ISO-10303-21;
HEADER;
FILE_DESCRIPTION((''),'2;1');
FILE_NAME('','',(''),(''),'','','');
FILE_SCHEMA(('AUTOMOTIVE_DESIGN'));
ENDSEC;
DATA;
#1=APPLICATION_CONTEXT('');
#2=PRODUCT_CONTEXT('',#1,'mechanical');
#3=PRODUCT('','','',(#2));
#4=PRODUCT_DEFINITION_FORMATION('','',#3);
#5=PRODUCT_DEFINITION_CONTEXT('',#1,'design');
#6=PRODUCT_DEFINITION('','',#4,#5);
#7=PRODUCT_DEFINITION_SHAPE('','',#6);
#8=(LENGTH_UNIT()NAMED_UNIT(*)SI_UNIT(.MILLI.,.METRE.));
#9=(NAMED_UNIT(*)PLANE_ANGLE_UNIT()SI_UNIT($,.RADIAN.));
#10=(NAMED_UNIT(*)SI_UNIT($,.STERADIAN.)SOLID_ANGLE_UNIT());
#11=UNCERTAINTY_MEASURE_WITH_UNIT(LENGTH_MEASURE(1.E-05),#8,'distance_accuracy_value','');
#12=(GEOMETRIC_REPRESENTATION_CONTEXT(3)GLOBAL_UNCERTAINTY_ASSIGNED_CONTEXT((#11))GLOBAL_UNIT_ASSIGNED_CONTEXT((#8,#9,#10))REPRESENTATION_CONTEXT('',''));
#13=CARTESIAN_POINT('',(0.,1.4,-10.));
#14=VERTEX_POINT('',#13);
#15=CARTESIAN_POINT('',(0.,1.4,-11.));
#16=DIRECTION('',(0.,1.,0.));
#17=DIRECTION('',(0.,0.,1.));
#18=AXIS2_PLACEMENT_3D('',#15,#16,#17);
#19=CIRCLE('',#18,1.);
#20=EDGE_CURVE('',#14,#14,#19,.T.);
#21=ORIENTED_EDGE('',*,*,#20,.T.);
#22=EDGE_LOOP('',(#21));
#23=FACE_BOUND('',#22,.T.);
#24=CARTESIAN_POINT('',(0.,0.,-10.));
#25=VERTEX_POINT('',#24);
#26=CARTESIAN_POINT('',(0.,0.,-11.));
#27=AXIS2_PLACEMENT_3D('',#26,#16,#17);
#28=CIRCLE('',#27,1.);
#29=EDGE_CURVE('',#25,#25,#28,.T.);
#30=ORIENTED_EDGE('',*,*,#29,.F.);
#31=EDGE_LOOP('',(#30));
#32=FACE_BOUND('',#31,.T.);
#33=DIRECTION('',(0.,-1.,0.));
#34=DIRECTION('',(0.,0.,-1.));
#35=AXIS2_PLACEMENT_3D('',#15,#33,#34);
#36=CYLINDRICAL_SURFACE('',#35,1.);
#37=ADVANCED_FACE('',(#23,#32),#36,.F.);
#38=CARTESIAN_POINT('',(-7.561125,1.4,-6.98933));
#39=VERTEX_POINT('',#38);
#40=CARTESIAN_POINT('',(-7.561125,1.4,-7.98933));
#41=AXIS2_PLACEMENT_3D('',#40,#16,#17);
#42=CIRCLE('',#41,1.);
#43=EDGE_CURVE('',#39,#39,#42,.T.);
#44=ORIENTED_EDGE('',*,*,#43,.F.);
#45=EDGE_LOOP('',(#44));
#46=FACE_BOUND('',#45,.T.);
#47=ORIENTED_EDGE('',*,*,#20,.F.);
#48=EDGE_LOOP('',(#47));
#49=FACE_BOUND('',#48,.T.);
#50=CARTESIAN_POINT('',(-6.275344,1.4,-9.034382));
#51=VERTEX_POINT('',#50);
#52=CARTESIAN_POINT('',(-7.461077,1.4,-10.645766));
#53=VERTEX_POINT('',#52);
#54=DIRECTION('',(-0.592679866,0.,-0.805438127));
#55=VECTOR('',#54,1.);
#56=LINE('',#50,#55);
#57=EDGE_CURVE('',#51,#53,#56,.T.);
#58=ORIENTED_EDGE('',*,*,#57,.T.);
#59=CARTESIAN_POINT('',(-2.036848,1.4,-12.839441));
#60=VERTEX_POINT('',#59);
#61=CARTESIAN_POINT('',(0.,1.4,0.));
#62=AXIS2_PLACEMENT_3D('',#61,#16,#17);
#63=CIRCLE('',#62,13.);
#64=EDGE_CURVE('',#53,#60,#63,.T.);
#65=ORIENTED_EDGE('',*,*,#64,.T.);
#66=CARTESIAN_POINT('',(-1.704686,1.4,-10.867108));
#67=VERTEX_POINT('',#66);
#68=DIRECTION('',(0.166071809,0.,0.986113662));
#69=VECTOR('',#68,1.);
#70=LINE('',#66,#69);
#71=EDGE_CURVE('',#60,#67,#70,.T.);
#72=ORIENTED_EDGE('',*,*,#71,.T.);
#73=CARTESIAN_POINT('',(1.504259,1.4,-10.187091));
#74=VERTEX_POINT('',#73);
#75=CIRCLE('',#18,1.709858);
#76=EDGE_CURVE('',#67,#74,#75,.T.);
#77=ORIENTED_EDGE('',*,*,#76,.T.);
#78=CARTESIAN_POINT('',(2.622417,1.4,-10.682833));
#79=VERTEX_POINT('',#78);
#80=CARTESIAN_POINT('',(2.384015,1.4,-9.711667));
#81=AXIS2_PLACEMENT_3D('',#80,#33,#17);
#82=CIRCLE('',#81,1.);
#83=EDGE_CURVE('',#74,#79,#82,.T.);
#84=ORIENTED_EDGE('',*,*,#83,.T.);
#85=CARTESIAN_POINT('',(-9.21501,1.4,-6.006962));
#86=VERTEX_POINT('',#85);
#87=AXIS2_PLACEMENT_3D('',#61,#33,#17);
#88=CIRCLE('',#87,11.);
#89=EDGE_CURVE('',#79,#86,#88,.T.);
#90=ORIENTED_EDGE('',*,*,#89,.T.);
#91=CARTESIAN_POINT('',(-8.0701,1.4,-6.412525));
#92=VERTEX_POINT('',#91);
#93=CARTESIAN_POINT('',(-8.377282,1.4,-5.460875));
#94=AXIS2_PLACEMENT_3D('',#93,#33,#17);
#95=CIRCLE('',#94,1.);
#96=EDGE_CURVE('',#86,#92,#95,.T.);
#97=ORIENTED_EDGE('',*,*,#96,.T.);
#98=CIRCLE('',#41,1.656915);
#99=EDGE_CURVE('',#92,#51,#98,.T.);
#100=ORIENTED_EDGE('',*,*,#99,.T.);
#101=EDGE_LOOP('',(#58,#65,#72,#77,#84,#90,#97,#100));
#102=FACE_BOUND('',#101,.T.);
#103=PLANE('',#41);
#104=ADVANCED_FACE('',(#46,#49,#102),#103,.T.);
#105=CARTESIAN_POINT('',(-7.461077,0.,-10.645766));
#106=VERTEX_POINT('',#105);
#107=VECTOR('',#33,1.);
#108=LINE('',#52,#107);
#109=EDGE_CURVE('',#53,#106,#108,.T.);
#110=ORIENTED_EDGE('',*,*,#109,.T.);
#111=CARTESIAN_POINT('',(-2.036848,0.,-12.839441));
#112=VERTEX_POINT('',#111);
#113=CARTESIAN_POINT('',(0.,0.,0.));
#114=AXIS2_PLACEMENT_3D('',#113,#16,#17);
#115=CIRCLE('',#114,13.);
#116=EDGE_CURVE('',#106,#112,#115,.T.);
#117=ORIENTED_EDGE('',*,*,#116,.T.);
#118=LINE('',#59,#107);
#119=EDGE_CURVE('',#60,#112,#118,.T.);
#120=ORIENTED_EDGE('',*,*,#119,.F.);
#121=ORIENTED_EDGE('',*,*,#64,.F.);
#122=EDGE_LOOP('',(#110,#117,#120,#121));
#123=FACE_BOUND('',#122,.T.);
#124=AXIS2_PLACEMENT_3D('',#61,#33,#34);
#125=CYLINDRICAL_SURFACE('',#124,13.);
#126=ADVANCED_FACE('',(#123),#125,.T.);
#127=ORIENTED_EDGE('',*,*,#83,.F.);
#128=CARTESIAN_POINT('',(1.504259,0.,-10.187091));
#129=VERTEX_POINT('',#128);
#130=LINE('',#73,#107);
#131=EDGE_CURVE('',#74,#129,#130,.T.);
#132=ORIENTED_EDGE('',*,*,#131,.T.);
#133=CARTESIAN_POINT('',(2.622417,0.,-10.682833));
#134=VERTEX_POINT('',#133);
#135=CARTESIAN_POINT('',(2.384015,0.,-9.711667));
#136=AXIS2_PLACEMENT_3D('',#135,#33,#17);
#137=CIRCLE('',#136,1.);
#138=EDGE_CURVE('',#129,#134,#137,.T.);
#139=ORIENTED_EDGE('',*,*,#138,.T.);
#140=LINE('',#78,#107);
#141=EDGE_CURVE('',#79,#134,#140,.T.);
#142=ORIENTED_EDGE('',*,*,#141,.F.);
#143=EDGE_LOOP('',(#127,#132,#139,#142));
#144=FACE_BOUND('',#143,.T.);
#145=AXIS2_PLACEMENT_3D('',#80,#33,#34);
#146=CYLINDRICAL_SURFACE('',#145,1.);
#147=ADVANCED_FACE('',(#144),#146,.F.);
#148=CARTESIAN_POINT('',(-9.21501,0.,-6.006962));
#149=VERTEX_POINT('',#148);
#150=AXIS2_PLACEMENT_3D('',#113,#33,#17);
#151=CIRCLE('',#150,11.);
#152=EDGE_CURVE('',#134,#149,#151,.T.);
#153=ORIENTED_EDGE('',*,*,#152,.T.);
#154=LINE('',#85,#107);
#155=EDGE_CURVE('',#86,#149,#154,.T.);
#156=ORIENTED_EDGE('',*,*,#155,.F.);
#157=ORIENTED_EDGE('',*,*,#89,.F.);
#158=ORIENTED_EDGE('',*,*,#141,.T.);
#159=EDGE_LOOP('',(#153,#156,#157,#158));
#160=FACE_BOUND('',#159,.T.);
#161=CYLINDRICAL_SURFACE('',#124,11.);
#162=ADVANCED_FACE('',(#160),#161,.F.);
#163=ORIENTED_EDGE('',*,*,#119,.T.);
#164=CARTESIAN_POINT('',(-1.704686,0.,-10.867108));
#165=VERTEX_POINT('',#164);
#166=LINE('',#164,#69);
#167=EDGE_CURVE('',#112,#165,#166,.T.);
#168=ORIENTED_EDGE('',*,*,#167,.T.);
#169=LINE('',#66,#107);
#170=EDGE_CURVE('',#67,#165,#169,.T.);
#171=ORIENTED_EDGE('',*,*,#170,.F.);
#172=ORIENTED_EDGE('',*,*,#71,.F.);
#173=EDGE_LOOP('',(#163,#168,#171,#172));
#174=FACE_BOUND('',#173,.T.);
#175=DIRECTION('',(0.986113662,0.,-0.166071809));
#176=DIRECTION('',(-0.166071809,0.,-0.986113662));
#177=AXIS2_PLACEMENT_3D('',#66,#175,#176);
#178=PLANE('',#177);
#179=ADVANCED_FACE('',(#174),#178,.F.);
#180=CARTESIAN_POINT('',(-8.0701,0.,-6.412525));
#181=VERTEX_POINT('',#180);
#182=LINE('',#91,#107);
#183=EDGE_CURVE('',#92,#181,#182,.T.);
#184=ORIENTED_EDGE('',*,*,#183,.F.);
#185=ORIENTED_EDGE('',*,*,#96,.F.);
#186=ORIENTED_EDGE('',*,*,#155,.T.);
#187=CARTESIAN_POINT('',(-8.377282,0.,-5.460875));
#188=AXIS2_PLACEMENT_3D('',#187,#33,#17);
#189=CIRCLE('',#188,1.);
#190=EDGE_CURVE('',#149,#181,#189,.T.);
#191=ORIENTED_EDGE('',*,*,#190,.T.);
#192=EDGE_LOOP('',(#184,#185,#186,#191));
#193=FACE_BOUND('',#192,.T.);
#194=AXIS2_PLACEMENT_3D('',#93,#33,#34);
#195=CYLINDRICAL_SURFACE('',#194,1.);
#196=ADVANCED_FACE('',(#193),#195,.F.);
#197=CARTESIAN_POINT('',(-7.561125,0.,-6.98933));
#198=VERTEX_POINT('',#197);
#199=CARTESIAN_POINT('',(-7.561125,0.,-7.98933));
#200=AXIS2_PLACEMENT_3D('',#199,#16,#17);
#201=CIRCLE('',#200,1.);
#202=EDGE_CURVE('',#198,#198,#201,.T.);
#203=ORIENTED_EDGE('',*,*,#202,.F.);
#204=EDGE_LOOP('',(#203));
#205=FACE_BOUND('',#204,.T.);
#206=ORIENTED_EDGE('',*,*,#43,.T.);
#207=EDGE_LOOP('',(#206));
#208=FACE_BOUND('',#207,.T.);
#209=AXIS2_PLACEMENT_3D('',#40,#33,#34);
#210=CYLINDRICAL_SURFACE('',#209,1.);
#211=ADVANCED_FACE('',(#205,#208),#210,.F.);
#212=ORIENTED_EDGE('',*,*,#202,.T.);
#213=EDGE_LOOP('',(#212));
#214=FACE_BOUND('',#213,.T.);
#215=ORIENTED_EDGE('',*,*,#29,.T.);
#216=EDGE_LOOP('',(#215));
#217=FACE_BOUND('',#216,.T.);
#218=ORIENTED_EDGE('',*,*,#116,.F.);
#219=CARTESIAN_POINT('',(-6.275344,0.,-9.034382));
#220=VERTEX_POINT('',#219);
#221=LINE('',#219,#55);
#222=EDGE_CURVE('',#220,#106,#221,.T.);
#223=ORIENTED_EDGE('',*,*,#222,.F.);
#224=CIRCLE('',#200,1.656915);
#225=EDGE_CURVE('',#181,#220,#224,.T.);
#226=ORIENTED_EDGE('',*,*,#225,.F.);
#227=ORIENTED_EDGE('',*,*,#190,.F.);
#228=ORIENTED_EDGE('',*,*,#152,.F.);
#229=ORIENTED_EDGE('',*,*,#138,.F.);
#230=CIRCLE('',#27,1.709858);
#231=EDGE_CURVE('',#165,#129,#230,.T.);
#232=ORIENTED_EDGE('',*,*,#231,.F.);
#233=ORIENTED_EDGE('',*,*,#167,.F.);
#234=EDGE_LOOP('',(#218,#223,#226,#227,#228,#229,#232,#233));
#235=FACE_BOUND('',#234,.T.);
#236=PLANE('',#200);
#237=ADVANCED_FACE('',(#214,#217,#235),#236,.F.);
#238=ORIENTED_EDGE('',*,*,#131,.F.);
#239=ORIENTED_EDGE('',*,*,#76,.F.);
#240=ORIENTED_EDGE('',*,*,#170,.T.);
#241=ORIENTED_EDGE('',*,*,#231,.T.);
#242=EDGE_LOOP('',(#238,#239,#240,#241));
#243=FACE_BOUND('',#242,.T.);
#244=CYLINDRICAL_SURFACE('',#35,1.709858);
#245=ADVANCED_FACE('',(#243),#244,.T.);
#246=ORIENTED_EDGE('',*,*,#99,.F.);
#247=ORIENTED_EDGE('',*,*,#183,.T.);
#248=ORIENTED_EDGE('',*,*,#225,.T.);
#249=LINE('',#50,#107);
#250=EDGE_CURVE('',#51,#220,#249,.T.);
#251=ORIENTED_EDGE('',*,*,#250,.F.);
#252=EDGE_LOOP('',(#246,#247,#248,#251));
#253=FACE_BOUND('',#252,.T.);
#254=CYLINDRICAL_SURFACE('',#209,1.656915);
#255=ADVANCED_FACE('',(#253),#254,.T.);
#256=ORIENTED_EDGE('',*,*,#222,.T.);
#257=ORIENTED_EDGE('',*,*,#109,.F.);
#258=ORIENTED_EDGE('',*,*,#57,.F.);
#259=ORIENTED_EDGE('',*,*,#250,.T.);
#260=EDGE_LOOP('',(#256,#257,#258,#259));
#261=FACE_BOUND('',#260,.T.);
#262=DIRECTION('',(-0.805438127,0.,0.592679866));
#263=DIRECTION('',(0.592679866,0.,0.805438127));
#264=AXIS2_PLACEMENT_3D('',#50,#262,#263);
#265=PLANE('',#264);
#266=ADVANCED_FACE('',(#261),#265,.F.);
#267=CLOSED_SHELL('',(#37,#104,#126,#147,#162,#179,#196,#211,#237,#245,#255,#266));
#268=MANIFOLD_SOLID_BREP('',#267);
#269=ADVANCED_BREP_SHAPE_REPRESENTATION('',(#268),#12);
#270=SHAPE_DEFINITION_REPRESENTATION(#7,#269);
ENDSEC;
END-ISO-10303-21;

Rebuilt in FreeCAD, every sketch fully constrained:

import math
import FreeCAD as App
import Part
import Sketcher

V = App.Vector
Q = App.Units.Quantity

doc = App.newDocument("Part")
params = doc.addObject("Spreadsheet::Sheet", "Params")
for row, (alias, value) in enumerate([
    ("sketch1_diameter", "2 mm"),
    ("sketch1_radius", "11 mm"),
    ("sketch1_radius2", "13 mm"),
    ("pad1_length", "1.4 mm"),
], start=1):
    params.set(f"A{row}", alias)
    params.set(f"B{row}", "=" + value)
    params.setAlias(f"B{row}", alias)

body = doc.addObject("PartDesign::Body", "Body")

sketch1 = doc.addObject("Sketcher::SketchObject", "Sketch")
body.addObject(sketch1)
sketch1.AttachmentSupport = (doc.XZ_Plane, [""])
sketch1.MapMode = "FlatFace"
sketch1.addGeometry([
    Part.LineSegment(V(-2.036848, -12.839441, 0), V(-1.704686, -10.867108, 0)),
    Part.ArcOfCircle(Part.Circle(V(0, -11, 0), V(0, 0, 1), 1.709858), math.radians(28.386999), math.radians(175.542429)),
    Part.ArcOfCircle(Part.Circle(V(2.384015, -9.711667, 0), V(0, 0, 1), 1), math.radians(-151.613001), math.radians(-76.207783)),
    Part.ArcOfCircle(Part.Circle(V(0, 0, 0), V(0, 0, 1), 11), math.radians(-76.207783), math.radians(213.099008)),
    Part.ArcOfCircle(Part.Circle(V(-8.377282, -5.460875, 0), V(0, 0, 1), 1), math.radians(-146.900992), math.radians(-72.110504)),
    Part.ArcOfCircle(Part.Circle(V(-7.561125, -7.98933, 0), V(0, 0, 1), 1.656915), math.radians(-39.10339), math.radians(107.889496)),
    Part.LineSegment(V(-6.275344, -9.034382, 0), V(-7.461077, -10.645766, 0)),
    Part.ArcOfCircle(Part.Circle(V(0, 0, 0), V(0, 0, 1), 13), math.radians(-99.014278), math.radians(234.975338)),
    Part.Circle(V(-7.561125, -7.98933, 0), V(0, 0, 1), 1),
    Part.Circle(V(0, -11, 0), V(0, 0, 1), 1),
], False)
sketch1.addConstraint([
    Sketcher.Constraint("Coincident", 0, 2, 1, 2),
    Sketcher.Constraint("Tangent", 1, 1, 2, 1),
    Sketcher.Constraint("Tangent", 2, 2, 3, 1),
    Sketcher.Constraint("Tangent", 3, 2, 4, 1),
    Sketcher.Constraint("Tangent", 4, 2, 5, 2),
    Sketcher.Constraint("Coincident", 5, 1, 6, 1),
    Sketcher.Constraint("Coincident", 6, 2, 7, 2),
    Sketcher.Constraint("Coincident", 7, 1, 0, 1),
    Sketcher.Constraint("Coincident", 3, 3, -1, 1),
    Sketcher.Constraint("Coincident", 7, 3, -1, 1),
    Sketcher.Constraint("Coincident", 8, 3, 5, 3),
    Sketcher.Constraint("Coincident", 9, 3, 1, 3),
    Sketcher.Constraint("Equal", 2, 4),
    Sketcher.Constraint("Equal", 4, 8),
    Sketcher.Constraint("Equal", 8, 9),
    Sketcher.Constraint("PointOnObject", 1, 3, -2),
    Sketcher.Constraint("Diameter", 8, Q("2 mm")),
    Sketcher.Constraint("Radius", 3, Q("11 mm")),
    Sketcher.Constraint("Radius", 7, Q("13 mm")),
    Sketcher.Constraint("DistanceY", 1, 3, -1, 1, Q("11 mm")),
    Sketcher.Constraint("Radius", 1, Q("1.709858 mm")),
    Sketcher.Constraint("Radius", 5, Q("1.656915 mm")),
    Sketcher.Constraint("DistanceX", 4, 2, -1, 1, Q("8.0701 mm")),
    Sketcher.Constraint("DistanceX", 0, 2, 2, 3, Q("4.088702 mm")),
    Sketcher.Constraint("Distance", 6, Q("2.00063 mm")),
    Sketcher.Constraint("DistanceX", 4, 3, -1, 1, Q("8.377282 mm")),
    Sketcher.Constraint("DistanceY", 7, 1, -1, 1, Q("12.839441 mm")),
    Sketcher.Constraint("DistanceX", 8, 3, 5, 1, Q("1.285781 mm")),
])
sketch1.setExpression("Constraints[16]", "Params.sketch1_diameter")
sketch1.setExpression("Constraints[17]", "Params.sketch1_radius")
sketch1.setExpression("Constraints[18]", "Params.sketch1_radius2")
pad1 = doc.addObject("PartDesign::Pad", "Pad")
body.addObject(pad1)
pad1.Profile = sketch1
pad1.setExpression("Length", "Params.pad1_length")
pad1.Reversed = True

doc.recompute()
